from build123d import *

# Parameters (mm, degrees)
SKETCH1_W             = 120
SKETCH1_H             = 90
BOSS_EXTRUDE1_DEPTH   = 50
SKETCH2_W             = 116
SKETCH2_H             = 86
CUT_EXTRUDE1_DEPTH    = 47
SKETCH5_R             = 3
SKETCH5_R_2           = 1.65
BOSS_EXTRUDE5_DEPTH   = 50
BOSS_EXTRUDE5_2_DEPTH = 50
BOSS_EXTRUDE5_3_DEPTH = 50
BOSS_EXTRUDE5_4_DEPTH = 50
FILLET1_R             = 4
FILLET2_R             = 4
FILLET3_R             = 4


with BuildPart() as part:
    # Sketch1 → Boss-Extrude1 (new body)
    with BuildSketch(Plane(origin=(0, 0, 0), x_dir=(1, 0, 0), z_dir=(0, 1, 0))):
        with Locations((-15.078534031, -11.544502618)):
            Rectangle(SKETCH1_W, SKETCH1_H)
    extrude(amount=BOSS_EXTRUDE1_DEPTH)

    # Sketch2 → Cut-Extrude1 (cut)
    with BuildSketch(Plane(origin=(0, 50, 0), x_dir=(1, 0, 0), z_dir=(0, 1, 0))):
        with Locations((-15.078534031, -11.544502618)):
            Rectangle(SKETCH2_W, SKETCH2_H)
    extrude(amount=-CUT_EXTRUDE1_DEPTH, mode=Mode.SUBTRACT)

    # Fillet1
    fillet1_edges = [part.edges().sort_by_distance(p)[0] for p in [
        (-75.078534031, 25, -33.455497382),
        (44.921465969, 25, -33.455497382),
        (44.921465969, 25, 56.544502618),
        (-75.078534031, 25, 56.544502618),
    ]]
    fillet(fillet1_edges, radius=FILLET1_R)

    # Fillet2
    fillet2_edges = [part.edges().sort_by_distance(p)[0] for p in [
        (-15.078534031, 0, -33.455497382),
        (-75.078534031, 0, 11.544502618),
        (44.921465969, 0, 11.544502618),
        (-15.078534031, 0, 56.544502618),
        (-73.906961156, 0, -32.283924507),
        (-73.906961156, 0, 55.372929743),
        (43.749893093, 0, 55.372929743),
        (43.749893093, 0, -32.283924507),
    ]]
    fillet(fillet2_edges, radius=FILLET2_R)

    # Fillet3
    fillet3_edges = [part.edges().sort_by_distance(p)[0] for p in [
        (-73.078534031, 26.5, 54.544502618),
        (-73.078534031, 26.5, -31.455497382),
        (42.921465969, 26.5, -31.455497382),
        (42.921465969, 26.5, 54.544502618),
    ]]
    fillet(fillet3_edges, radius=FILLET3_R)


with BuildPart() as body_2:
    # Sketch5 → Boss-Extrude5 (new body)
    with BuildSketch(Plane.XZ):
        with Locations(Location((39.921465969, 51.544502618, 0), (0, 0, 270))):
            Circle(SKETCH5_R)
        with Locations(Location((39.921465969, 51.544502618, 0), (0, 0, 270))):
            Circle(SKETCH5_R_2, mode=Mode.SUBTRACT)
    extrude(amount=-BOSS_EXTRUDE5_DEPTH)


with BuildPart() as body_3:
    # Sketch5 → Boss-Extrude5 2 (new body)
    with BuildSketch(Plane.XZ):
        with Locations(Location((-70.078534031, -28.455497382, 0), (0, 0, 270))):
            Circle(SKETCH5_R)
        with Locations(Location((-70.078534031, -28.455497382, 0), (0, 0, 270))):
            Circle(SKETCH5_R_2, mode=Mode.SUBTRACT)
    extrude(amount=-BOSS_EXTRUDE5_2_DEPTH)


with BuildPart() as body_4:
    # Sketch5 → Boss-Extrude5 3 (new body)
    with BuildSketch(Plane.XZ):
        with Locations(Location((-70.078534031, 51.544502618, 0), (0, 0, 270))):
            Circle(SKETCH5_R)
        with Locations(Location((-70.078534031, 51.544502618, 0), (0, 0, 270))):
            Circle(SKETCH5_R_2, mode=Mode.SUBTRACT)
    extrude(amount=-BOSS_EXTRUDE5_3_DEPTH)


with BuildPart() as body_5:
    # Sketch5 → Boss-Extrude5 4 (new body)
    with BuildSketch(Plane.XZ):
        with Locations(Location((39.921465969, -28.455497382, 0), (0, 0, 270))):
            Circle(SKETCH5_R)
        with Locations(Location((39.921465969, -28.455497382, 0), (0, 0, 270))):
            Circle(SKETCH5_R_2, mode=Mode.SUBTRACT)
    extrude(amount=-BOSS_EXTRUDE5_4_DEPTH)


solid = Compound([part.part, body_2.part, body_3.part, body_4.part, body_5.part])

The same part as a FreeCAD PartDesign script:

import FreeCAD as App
import Part
import Sketcher


def edges_at(feature, points):
    """Names of the edges that pass closest to the given points."""
    edges = feature.Shape.Edges
    near = lambda p: min(range(len(edges)), key=lambda i: edges[i].distToShape(Part.Vertex(*p))[0])
    return sorted({f"Edge{near(p) + 1}" for p in points})


def add_polygon(sketch, points):
    """Adds a closed chain of lines whose ends are joined by coincident constraints."""
    first, n = sketch.GeometryCount, len(points)
    for a, b in zip(points, points[1:] + points[:1]):
        sketch.addGeometry(Part.LineSegment(App.Vector(*a, 0), App.Vector(*b, 0)), False)
    for i in range(n):
        sketch.addConstraint(Sketcher.Constraint("Coincident", first + i, 2, first + (i + 1) % n, 1))

doc = App.newDocument("Part")
params = doc.addObject("Spreadsheet::Sheet", "Params")
for row, (alias, value) in enumerate([
    ("sketch1_width", "120 mm"),
    ("sketch1_height", "90 mm"),
    ("pad1_length", "50 mm"),
    ("sketch2_width", "116 mm"),
    ("sketch2_height", "86 mm"),
    ("pocket1_length", "47 mm"),
    ("fillet_radius", "4 mm"),
    ("fillet2_radius", "4 mm"),
    ("fillet3_radius", "4 mm"),
    ("sketch3_diameter", "6 mm"),
    ("sketch3_diameter2", "3.3 mm"),
    ("pad2_length", "50 mm"),
    ("sketch4_diameter", "6 mm"),
    ("sketch4_diameter2", "3.3 mm"),
    ("pad3_length", "50 mm"),
    ("sketch5_diameter", "6 mm"),
    ("sketch5_diameter2", "3.3 mm"),
    ("pad4_length", "50 mm"),
    ("sketch6_diameter", "6 mm"),
    ("sketch6_diameter2", "3.3 mm"),
    ("pad5_length", "50 mm"),
], start=1):
    params.set(f"A{row}", alias)
    params.set(f"B{row}", "=" + value)
    params.setAlias(f"B{row}", alias)

body = doc.addObject("PartDesign::Body", "Body")

# Sketch on XZ plane
sketch1 = body.newObject("Sketcher::SketchObject", "Sketch")
sketch1.AttachmentSupport = (doc.getObject("XZ_Plane"), [""])
sketch1.MapMode = "FlatFace"
add_polygon(sketch1, [(-75.078534, -33.455497), (-75.078534, 56.544503), (44.921466, 56.544503), (44.921466, -33.455497)])  # lines 0-3
sketch1.addConstraint(Sketcher.Constraint("Vertical", 0))
sketch1.addConstraint(Sketcher.Constraint("Horizontal", 1))
sketch1.addConstraint(Sketcher.Constraint("Vertical", 2))
sketch1.addConstraint(Sketcher.Constraint("Horizontal", 3))
sketch1.addConstraint(Sketcher.Constraint("DistanceX", 1, 1, 1, 2, 120.0))
sketch1.addConstraint(Sketcher.Constraint("DistanceY", 0, 1, 0, 2, 90.0))
sketch1.addConstraint(Sketcher.Constraint("DistanceX", 0, 2, -1, 1, 75.078534))
sketch1.addConstraint(Sketcher.Constraint("DistanceY", -1, 1, 0, 2, 56.544503))
sketch1.setExpression("Constraints[8]", "Params.sketch1_width")
sketch1.setExpression("Constraints[9]", "Params.sketch1_height")
pad1 = body.newObject("PartDesign::Pad", "Pad")
pad1.Profile = sketch1
pad1.setExpression("Length", "Params.pad1_length")
pad1.Reversed = True

# Sketch on XZ plane
sketch2 = body.newObject("Sketcher::SketchObject", "Sketch001")
sketch2.AttachmentSupport = (doc.getObject("XZ_Plane"), [""])
sketch2.MapMode = "FlatFace"
sketch2.AttachmentOffset = App.Placement(App.Vector(0, 0, -50), App.Rotation())
add_polygon(sketch2, [(-73.078534, -31.455497), (-73.078534, 54.544503), (42.921466, 54.544503), (42.921466, -31.455497)])  # lines 0-3
sketch2.addConstraint(Sketcher.Constraint("Vertical", 0))
sketch2.addConstraint(Sketcher.Constraint("Horizontal", 1))
sketch2.addConstraint(Sketcher.Constraint("Vertical", 2))
sketch2.addConstraint(Sketcher.Constraint("Horizontal", 3))
sketch2.addConstraint(Sketcher.Constraint("DistanceX", 1, 1, 1, 2, 116.0))
sketch2.addConstraint(Sketcher.Constraint("DistanceY", 0, 1, 0, 2, 86.0))
sketch2.addConstraint(Sketcher.Constraint("DistanceX", 0, 2, -1, 1, 73.078534))
sketch2.addConstraint(Sketcher.Constraint("DistanceY", -1, 1, 0, 2, 54.544503))
sketch2.setExpression("Constraints[8]", "Params.sketch2_width")
sketch2.setExpression("Constraints[9]", "Params.sketch2_height")
pocket1 = body.newObject("PartDesign::Pocket", "Pocket")
pocket1.Profile = sketch2
pocket1.setExpression("Length", "Params.pocket1_length")
pocket1.Reversed = True
doc.recompute()

fillet = body.newObject("PartDesign::Fillet", "Fillet")
fillet.Base = (pocket1, edges_at(pocket1, [
    (-75.079, 25, -33.455),
    (44.921, 25, -33.455),
    (44.921, 25, 56.545),
    (-75.079, 25, 56.545),
]))
fillet.setExpression("Radius", "Params.fillet_radius")
doc.recompute()

fillet2 = body.newObject("PartDesign::Fillet", "Fillet001")
fillet2.Base = (fillet, edges_at(fillet, [
    (-15.079, 0, -33.455),
    (-75.079, 0, 11.545),
    (44.921, 0, 11.545),
    (-15.079, 0, 56.545),
    (-73.907, 0, -32.284),
    (-73.907, 0, 55.373),
    (43.75, 0, 55.373),
    (43.75, 0, -32.284),
]))
fillet2.setExpression("Radius", "Params.fillet2_radius")
doc.recompute()

fillet3 = body.newObject("PartDesign::Fillet", "Fillet002")
fillet3.Base = (fillet2, edges_at(fillet2, [
    (-73.079, 26.5, 54.545),
    (-73.079, 26.5, -31.455),
    (42.921, 26.5, -31.455),
    (42.921, 26.5, 54.545),
]))
fillet3.setExpression("Radius", "Params.fillet3_radius")
body2 = doc.addObject("PartDesign::Body", "Body001")

# Sketch on XZ plane
sketch3 = body2.newObject("Sketcher::SketchObject", "Sketch002")
sketch3.AttachmentSupport = (doc.getObject("XZ_Plane001"), [""])
sketch3.MapMode = "FlatFace"
sketch3.addGeometry(Part.Circle(App.Vector(39.921466, 51.544503, 0), App.Vector(0, 0, 1), 3), False)
sketch3.addGeometry(Part.Circle(App.Vector(39.921466, 51.544503, 0), App.Vector(0, 0, 1), 1.65), False)
sketch3.addConstraint(Sketcher.Constraint("Coincident", 1, 3, 0, 3))
sketch3.addConstraint(Sketcher.Constraint("Diameter", 0, 6.0))
sketch3.addConstraint(Sketcher.Constraint("Diameter", 1, 3.3))
sketch3.addConstraint(Sketcher.Constraint("DistanceX", -1, 1, 0, 3, 39.921466))
sketch3.addConstraint(Sketcher.Constraint("DistanceY", -1, 1, 0, 3, 51.544503))
sketch3.setExpression("Constraints[1]", "Params.sketch3_diameter")
sketch3.setExpression("Constraints[2]", "Params.sketch3_diameter2")
pad2 = body2.newObject("PartDesign::Pad", "Pad001")
pad2.Profile = sketch3
pad2.setExpression("Length", "Params.pad2_length")
pad2.Reversed = True
body3 = doc.addObject("PartDesign::Body", "Body002")

# Sketch on XZ plane
sketch4 = body3.newObject("Sketcher::SketchObject", "Sketch003")
sketch4.AttachmentSupport = (doc.getObject("XZ_Plane002"), [""])
sketch4.MapMode = "FlatFace"
sketch4.addGeometry(Part.Circle(App.Vector(-70.078534, -28.455497, 0), App.Vector(0, 0, 1), 3), False)
sketch4.addGeometry(Part.Circle(App.Vector(-70.078534, -28.455497, 0), App.Vector(0, 0, 1), 1.65), False)
sketch4.addConstraint(Sketcher.Constraint("Coincident", 1, 3, 0, 3))
sketch4.addConstraint(Sketcher.Constraint("Diameter", 0, 6.0))
sketch4.addConstraint(Sketcher.Constraint("Diameter", 1, 3.3))
sketch4.addConstraint(Sketcher.Constraint("DistanceX", 0, 3, -1, 1, 70.078534))
sketch4.addConstraint(Sketcher.Constraint("DistanceY", 0, 3, -1, 1, 28.455497))
sketch4.setExpression("Constraints[1]", "Params.sketch4_diameter")
sketch4.setExpression("Constraints[2]", "Params.sketch4_diameter2")
pad3 = body3.newObject("PartDesign::Pad", "Pad002")
pad3.Profile = sketch4
pad3.setExpression("Length", "Params.pad3_length")
pad3.Reversed = True
body4 = doc.addObject("PartDesign::Body", "Body003")

# Sketch on XZ plane
sketch5 = body4.newObject("Sketcher::SketchObject", "Sketch004")
sketch5.AttachmentSupport = (doc.getObject("XZ_Plane003"), [""])
sketch5.MapMode = "FlatFace"
sketch5.addGeometry(Part.Circle(App.Vector(-70.078534, 51.544503, 0), App.Vector(0, 0, 1), 3), False)
sketch5.addGeometry(Part.Circle(App.Vector(-70.078534, 51.544503, 0), App.Vector(0, 0, 1), 1.65), False)
sketch5.addConstraint(Sketcher.Constraint("Coincident", 1, 3, 0, 3))
sketch5.addConstraint(Sketcher.Constraint("Diameter", 0, 6.0))
sketch5.addConstraint(Sketcher.Constraint("Diameter", 1, 3.3))
sketch5.addConstraint(Sketcher.Constraint("DistanceX", 0, 3, -1, 1, 70.078534))
sketch5.addConstraint(Sketcher.Constraint("DistanceY", -1, 1, 0, 3, 51.544503))
sketch5.setExpression("Constraints[1]", "Params.sketch5_diameter")
sketch5.setExpression("Constraints[2]", "Params.sketch5_diameter2")
pad4 = body4.newObject("PartDesign::Pad", "Pad003")
pad4.Profile = sketch5
pad4.setExpression("Length", "Params.pad4_length")
pad4.Reversed = True
body5 = doc.addObject("PartDesign::Body", "Body004")

# Sketch on XZ plane
sketch6 = body5.newObject("Sketcher::SketchObject", "Sketch005")
sketch6.AttachmentSupport = (doc.getObject("XZ_Plane004"), [""])
sketch6.MapMode = "FlatFace"
sketch6.addGeometry(Part.Circle(App.Vector(39.921466, -28.455497, 0), App.Vector(0, 0, 1), 3), False)
sketch6.addGeometry(Part.Circle(App.Vector(39.921466, -28.455497, 0), App.Vector(0, 0, 1), 1.65), False)
sketch6.addConstraint(Sketcher.Constraint("Coincident", 1, 3, 0, 3))
sketch6.addConstraint(Sketcher.Constraint("Diameter", 0, 6.0))
sketch6.addConstraint(Sketcher.Constraint("Diameter", 1, 3.3))
sketch6.addConstraint(Sketcher.Constraint("DistanceX", -1, 1, 0, 3, 39.921466))
sketch6.addConstraint(Sketcher.Constraint("DistanceY", 0, 3, -1, 1, 28.455497))
sketch6.setExpression("Constraints[1]", "Params.sketch6_diameter")
sketch6.setExpression("Constraints[2]", "Params.sketch6_diameter2")
pad5 = body5.newObject("PartDesign::Pad", "Pad004")
pad5.Profile = sketch6
pad5.setExpression("Length", "Params.pad5_length")
pad5.Reversed = True

doc.recompute()
